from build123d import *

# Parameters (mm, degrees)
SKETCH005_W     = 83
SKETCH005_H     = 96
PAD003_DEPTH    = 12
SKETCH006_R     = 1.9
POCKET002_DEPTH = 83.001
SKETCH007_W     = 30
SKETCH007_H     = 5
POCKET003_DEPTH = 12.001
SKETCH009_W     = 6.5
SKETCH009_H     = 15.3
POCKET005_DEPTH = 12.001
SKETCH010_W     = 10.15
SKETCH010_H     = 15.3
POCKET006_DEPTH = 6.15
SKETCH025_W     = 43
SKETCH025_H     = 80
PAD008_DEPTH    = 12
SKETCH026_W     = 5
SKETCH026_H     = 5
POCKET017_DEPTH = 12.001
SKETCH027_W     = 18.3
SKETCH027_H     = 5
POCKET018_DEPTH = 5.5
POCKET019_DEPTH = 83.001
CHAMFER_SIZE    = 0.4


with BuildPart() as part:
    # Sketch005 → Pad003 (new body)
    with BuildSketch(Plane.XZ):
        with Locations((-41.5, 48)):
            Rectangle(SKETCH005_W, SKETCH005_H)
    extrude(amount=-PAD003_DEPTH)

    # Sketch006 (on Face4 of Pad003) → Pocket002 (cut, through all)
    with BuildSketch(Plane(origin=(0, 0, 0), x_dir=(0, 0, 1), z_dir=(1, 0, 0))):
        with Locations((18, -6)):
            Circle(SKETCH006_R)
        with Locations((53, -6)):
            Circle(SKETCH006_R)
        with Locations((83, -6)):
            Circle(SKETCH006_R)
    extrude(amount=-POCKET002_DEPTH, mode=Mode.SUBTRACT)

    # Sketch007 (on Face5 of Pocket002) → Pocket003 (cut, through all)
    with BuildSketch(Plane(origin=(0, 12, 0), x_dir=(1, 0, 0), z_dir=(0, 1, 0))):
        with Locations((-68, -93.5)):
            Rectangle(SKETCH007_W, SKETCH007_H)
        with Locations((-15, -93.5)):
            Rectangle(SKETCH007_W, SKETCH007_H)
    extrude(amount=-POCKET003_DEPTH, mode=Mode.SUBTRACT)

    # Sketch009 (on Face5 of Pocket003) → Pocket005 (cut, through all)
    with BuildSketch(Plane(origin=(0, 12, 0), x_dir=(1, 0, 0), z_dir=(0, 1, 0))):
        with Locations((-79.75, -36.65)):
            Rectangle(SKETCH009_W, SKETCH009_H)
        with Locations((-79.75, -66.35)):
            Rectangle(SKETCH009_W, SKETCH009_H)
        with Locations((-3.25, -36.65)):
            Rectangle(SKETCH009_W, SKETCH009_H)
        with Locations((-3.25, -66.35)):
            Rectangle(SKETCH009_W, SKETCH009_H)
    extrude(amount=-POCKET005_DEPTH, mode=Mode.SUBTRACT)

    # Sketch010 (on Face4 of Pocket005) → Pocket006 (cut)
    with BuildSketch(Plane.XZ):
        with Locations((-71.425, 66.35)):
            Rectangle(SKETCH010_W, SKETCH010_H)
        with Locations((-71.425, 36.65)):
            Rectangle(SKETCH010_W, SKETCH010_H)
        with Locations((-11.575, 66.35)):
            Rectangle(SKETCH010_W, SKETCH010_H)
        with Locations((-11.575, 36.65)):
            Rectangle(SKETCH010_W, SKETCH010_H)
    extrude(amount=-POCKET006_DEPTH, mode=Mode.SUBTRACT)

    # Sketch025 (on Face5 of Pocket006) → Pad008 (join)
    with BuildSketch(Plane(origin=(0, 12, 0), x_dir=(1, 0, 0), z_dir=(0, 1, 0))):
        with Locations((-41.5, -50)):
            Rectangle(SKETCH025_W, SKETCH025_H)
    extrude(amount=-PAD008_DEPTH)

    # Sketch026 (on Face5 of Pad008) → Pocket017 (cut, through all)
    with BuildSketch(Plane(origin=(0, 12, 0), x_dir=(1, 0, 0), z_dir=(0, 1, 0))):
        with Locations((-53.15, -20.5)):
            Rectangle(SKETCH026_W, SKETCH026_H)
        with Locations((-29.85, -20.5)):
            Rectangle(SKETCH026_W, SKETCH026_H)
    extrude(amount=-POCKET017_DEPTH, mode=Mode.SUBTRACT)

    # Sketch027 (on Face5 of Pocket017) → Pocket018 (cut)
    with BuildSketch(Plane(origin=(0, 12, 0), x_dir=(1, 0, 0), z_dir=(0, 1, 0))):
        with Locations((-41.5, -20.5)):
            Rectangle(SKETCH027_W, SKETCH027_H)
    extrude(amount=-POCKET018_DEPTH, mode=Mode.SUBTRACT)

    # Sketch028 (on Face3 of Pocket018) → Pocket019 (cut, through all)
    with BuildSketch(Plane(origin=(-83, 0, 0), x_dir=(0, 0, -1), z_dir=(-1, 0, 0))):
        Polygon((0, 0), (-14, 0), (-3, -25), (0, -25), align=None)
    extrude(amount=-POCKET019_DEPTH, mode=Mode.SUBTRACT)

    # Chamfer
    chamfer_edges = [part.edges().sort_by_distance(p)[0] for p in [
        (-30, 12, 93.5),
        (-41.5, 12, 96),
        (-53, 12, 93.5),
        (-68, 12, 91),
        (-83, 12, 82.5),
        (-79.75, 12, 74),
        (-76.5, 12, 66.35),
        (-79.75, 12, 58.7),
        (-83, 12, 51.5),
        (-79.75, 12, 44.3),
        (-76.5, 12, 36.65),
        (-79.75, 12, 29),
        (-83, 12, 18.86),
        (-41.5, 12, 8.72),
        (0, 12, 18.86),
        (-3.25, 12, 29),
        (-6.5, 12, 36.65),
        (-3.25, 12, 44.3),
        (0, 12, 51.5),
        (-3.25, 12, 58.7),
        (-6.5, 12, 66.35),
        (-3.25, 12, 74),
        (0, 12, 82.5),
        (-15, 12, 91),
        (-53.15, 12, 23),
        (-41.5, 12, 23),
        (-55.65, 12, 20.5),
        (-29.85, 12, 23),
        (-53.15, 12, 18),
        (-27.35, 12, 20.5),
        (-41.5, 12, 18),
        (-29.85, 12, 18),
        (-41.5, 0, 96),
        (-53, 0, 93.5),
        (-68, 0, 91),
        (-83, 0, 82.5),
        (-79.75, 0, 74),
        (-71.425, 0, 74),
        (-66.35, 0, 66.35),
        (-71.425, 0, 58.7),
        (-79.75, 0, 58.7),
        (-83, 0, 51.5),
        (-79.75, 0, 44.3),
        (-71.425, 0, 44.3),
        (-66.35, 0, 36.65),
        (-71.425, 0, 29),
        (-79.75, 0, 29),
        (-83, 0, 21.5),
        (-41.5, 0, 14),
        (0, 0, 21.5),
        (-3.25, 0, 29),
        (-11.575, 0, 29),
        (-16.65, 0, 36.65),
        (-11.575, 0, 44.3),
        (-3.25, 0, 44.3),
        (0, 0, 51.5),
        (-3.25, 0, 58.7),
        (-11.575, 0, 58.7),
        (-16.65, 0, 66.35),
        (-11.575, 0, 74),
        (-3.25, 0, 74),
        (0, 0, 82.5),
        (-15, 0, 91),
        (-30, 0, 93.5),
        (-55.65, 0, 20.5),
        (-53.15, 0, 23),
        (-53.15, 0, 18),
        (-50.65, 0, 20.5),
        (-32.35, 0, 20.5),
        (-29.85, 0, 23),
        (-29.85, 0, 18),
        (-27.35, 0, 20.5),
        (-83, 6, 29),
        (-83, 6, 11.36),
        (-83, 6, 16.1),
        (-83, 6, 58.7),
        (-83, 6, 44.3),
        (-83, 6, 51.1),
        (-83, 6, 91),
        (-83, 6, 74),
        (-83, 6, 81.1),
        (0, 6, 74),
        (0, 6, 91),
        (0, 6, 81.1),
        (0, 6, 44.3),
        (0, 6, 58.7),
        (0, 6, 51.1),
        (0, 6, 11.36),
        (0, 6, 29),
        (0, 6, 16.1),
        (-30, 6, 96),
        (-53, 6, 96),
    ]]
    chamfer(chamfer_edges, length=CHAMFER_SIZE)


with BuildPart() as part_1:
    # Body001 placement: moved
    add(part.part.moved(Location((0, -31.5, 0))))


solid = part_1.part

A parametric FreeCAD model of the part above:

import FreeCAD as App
import Part
import Sketcher

V = App.Vector
Q = App.Units.Quantity


def edges_at(feature, points):
    """Names of the edges that pass closest to the given points."""
    edges = feature.Shape.Edges
    near = lambda p: min(range(len(edges)), key=lambda i: edges[i].distToShape(Part.Vertex(*p))[0])
    return sorted({f"Edge{near(p) + 1}" for p in points})


def add_polygon(sketch, points):
    """Adds a closed chain of lines whose ends are joined by coincident constraints."""
    first, n = sketch.GeometryCount, len(points)
    for a, b in zip(points, points[1:] + points[:1]):
        sketch.addGeometry(Part.LineSegment(App.Vector(*a, 0), App.Vector(*b, 0)), False)
    for i in range(n):
        sketch.addConstraint(Sketcher.Constraint("Coincident", first + i, 2, first + (i + 1) % n, 1))

doc = App.newDocument("Part")
body = doc.addObject("PartDesign::Body", "Body")

# Sketch on XZ plane
sketch1 = doc.addObject("Sketcher::SketchObject", "Sketch")
body.addObject(sketch1)
sketch1.AttachmentSupport = (doc.XZ_Plane, [""])
sketch1.MapMode = "FlatFace"
add_polygon(sketch1, [(-83, 96), (-83, 0), (0, 0), (0, 96)])  # lines 0-3
sketch1.addConstraint([
    Sketcher.Constraint("Vertical", 0),
    Sketcher.Constraint("Horizontal", 1),
    Sketcher.Constraint("Vertical", 2),
    Sketcher.Constraint("Horizontal", 3),
    Sketcher.Constraint("Coincident", 1, 2, -1, 1),
    Sketcher.Constraint("DistanceX", 1, 1, 1, 2, Q("83 mm")),
    Sketcher.Constraint("DistanceY", 0, 2, 0, 1, Q("96 mm")),
])
pad1 = doc.addObject("PartDesign::Pad", "Pad")
body.addObject(pad1)
pad1.Profile = sketch1
pad1.Length = 12
pad1.Reversed = True

# Sketch on YZ plane
sketch2 = doc.addObject("Sketcher::SketchObject", "Sketch001")
body.addObject(sketch2)
sketch2.AttachmentSupport = (doc.YZ_Plane, [""])
sketch2.MapMode = "FlatFace"
sketch2.addGeometry([
    Part.Circle(V(6, 18, 0), V(0, 0, 1), 1.9),
    Part.Circle(V(6, 53, 0), V(0, 0, 1), 1.9),
    Part.Circle(V(6, 83, 0), V(0, 0, 1), 1.9),
], False)
sketch2.addConstraint([
    Sketcher.Constraint("Equal", 0, 1),
    Sketcher.Constraint("Equal", 1, 2),
    Sketcher.Constraint("Vertical", 0, 3, 1, 3),
    Sketcher.Constraint("Vertical", 1, 3, 2, 3),
    Sketcher.Constraint("Diameter", 0, Q("3.8 mm")),
    Sketcher.Constraint("DistanceX", -1, 1, 0, 3, Q("6 mm")),
    Sketcher.Constraint("DistanceY", -1, 1, 0, 3, Q("18 mm")),
    Sketcher.Constraint("DistanceY", -1, 1, 1, 3, Q("53 mm")),
    Sketcher.Constraint("DistanceY", -1, 1, 2, 3, Q("83 mm")),
])
pocket1 = doc.addObject("PartDesign::Pocket", "Pocket")
body.addObject(pocket1)
pocket1.Profile = sketch2
pocket1.Type = "ThroughAll"

# Sketch on XZ plane
sketch3 = doc.addObject("Sketcher::SketchObject", "Sketch002")
body.addObject(sketch3)
sketch3.AttachmentSupport = (doc.XZ_Plane, [""])
sketch3.MapMode = "FlatFace"
sketch3.AttachmentOffset = App.Placement(V(0, 0, -12), App.Rotation())
add_polygon(sketch3, [(-83, 91), (-83, 96), (-53, 96), (-53, 91)])  # lines 0-3
add_polygon(sketch3, [(-30, 91), (-30, 96), (0, 96), (0, 91)])  # lines 4-7
sketch3.addConstraint([
    Sketcher.Constraint("Vertical", 0),
    Sketcher.Constraint("Horizontal", 1),
    Sketcher.Constraint("Vertical", 2),
    Sketcher.Constraint("Horizontal", 3),
    Sketcher.Constraint("Vertical", 4),
    Sketcher.Constraint("Horizontal", 5),
    Sketcher.Constraint("Vertical", 6),
    Sketcher.Constraint("Horizontal", 7),
    Sketcher.Constraint("PointOnObject", 5, 2, -2),
    Sketcher.Constraint("Horizontal", 1, 2, 4, 2),
    Sketcher.Constraint("Horizontal", 3, 2, 6, 2),
    Sketcher.Constraint("Equal", 3, 5),
    Sketcher.Constraint("DistanceX", 1, 1, 1, 2, Q("30 mm")),
    Sketcher.Constraint("DistanceY", 0, 1, 0, 2, Q("5 mm")),
    Sketcher.Constraint("DistanceX", 0, 2, -1, 1, Q("83 mm")),
    Sketcher.Constraint("DistanceY", -1, 1, 0, 2, Q("96 mm")),
])
pocket2 = doc.addObject("PartDesign::Pocket", "Pocket001")
body.addObject(pocket2)
pocket2.Profile = sketch3
pocket2.Type = "ThroughAll"
pocket2.Reversed = True

# Sketch on XZ plane
sketch4 = doc.addObject("Sketcher::SketchObject", "Sketch003")
body.addObject(sketch4)
sketch4.AttachmentSupport = (doc.XZ_Plane, [""])
sketch4.MapMode = "FlatFace"
sketch4.AttachmentOffset = App.Placement(V(0, 0, -12), App.Rotation())
add_polygon(sketch4, [(-83, 29), (-83, 44.3), (-76.5, 44.3), (-76.5, 29)])  # lines 0-3
add_polygon(sketch4, [(-83, 58.7), (-83, 74), (-76.5, 74), (-76.5, 58.7)])  # lines 4-7
add_polygon(sketch4, [(-6.5, 29), (-6.5, 44.3), (0, 44.3), (0, 29)])  # lines 8-11
add_polygon(sketch4, [(-6.5, 58.7), (-6.5, 74), (0, 74), (0, 58.7)])  # lines 12-15
sketch4.addConstraint([
    Sketcher.Constraint("Vertical", 0),
    Sketcher.Constraint("Horizontal", 1),
    Sketcher.Constraint("Vertical", 2),
    Sketcher.Constraint("Horizontal", 3),
    Sketcher.Constraint("Vertical", 4),
    Sketcher.Constraint("Horizontal", 5),
    Sketcher.Constraint("Vertical", 6),
    Sketcher.Constraint("Horizontal", 7),
    Sketcher.Constraint("Vertical", 8),
    Sketcher.Constraint("Horizontal", 9),
    Sketcher.Constraint("Vertical", 10),
    Sketcher.Constraint("Horizontal", 11),
    Sketcher.Constraint("Vertical", 12),
    Sketcher.Constraint("Horizontal", 13),
    Sketcher.Constraint("Vertical", 14),
    Sketcher.Constraint("Horizontal", 15),
    Sketcher.Constraint("PointOnObject", 9, 2, -2),
    Sketcher.Constraint("PointOnObject", 13, 2, -2),
    Sketcher.Constraint("Horizontal", 1, 2, 8, 2),
    Sketcher.Constraint("Horizontal", 3, 2, 10, 2),
    Sketcher.Constraint("Horizontal", 5, 2, 12, 2),
    Sketcher.Constraint("Horizontal", 7, 2, 14, 2),
    Sketcher.Constraint("Vertical", 3, 2, 4, 2),
    Sketcher.Constraint("Vertical", 2, 2, 5, 2),
    Sketcher.Constraint("Vertical", 11, 2, 12, 2),
    Sketcher.Constraint("Equal", 7, 9),
    Sketcher.Constraint("Equal", 2, 4),
    Sketcher.Constraint("DistanceX", 1, 1, 1, 2, Q("6.5 mm")),
    Sketcher.Constraint("DistanceY", 0, 1, 0, 2, Q("15.3 mm")),
    Sketcher.Constraint("DistanceX", 0, 2, -1, 1, Q("83 mm")),
    Sketcher.Constraint("DistanceY", -1, 1, 2, 2, Q("29 mm")),
    Sketcher.Constraint("DistanceY", -1, 1, 4, 2, Q("74 mm")),
])
pocket3 = doc.addObject("PartDesign::Pocket", "Pocket002")
body.addObject(pocket3)
pocket3.Profile = sketch4
pocket3.Type = "ThroughAll"
pocket3.Reversed = True

# Sketch on XZ plane
sketch5 = doc.addObject("Sketcher::SketchObject", "Sketch004")
body.addObject(sketch5)
sketch5.AttachmentSupport = (doc.XZ_Plane, [""])
sketch5.MapMode = "FlatFace"
add_polygon(sketch5, [(-76.5, 74), (-76.5, 58.7), (-66.35, 58.7), (-66.35, 74)])  # lines 0-3
add_polygon(sketch5, [(-76.5, 44.3), (-76.5, 29), (-66.35, 29), (-66.35, 44.3)])  # lines 4-7
add_polygon(sketch5, [(-16.65, 74), (-16.65, 58.7), (-6.5, 58.7), (-6.5, 74)])  # lines 8-11
add_polygon(sketch5, [(-16.65, 44.3), (-16.65, 29), (-6.5, 29), (-6.5, 44.3)])  # lines 12-15
sketch5.addConstraint([
    Sketcher.Constraint("Vertical", 0),
    Sketcher.Constraint("Horizontal", 1),
    Sketcher.Constraint("Vertical", 2),
    Sketcher.Constraint("Horizontal", 3),
    Sketcher.Constraint("Vertical", 4),
    Sketcher.Constraint("Horizontal", 5),
    Sketcher.Constraint("Vertical", 6),
    Sketcher.Constraint("Horizontal", 7),
    Sketcher.Constraint("Vertical", 8),
    Sketcher.Constraint("Horizontal", 9),
    Sketcher.Constraint("Vertical", 10),
    Sketcher.Constraint("Horizontal", 11),
    Sketcher.Constraint("Vertical", 12),
    Sketcher.Constraint("Horizontal", 13),
    Sketcher.Constraint("Vertical", 14),
    Sketcher.Constraint("Horizontal", 15),
    Sketcher.Constraint("Horizontal", 1, 2, 8, 2),
    Sketcher.Constraint("Horizontal", 3, 2, 10, 2),
    Sketcher.Constraint("Horizontal", 5, 2, 12, 2),
    Sketcher.Constraint("Horizontal", 7, 2, 14, 2),
    Sketcher.Constraint("Vertical", 3, 2, 4, 2),
    Sketcher.Constraint("Vertical", 2, 2, 5, 2),
    Sketcher.Constraint("Vertical", 11, 2, 12, 2),
    Sketcher.Constraint("Vertical", 10, 2, 13, 2),
    Sketcher.Constraint("Equal", 7, 9),
    Sketcher.Constraint("Equal", 2, 4),
    Sketcher.Constraint("DistanceY", 0, 2, 0, 1, Q("15.3 mm")),
    Sketcher.Constraint("DistanceY", -1, 1, 2, 2, Q("74 mm")),
    Sketcher.Constraint("DistanceY", -1, 1, 4, 2, Q("29 mm")),
    Sketcher.Constraint("DistanceX", 1, 1, 1, 2, Q("10.15 mm")),
    Sketcher.Constraint("DistanceX", 0, 2, -1, 1, Q("76.5 mm")),
    Sketcher.Constraint("DistanceX", 9, 2, -1, 1, Q("6.5 mm")),
])
pocket4 = doc.addObject("PartDesign::Pocket", "Pocket003")
body.addObject(pocket4)
pocket4.Profile = sketch5
pocket4.Length = 6.15

# Sketch on XZ plane
sketch6 = doc.addObject("Sketcher::SketchObject", "Sketch005")
body.addObject(sketch6)
sketch6.AttachmentSupport = (doc.XZ_Plane, [""])
sketch6.MapMode = "FlatFace"
sketch6.AttachmentOffset = App.Placement(V(0, 0, -12), App.Rotation())
add_polygon(sketch6, [(-63, 10), (-63, 90), (-20, 90), (-20, 10)])  # lines 0-3
sketch6.addConstraint([
    Sketcher.Constraint("Vertical", 0),
    Sketcher.Constraint("Horizontal", 1),
    Sketcher.Constraint("Vertical", 2),
    Sketcher.Constraint("Horizontal", 3),
    Sketcher.Constraint("DistanceX", 1, 1, 1, 2, Q("43 mm")),
    Sketcher.Constraint("DistanceY", 0, 1, 0, 2, Q("80 mm")),
    Sketcher.Constraint("DistanceX", 0, 2, -1, 1, Q("63 mm")),
    Sketcher.Constraint("DistanceY", -1, 1, 0, 2, Q("90 mm")),
])
pad2 = doc.addObject("PartDesign::Pad", "Pad001")
body.addObject(pad2)
pad2.Profile = sketch6
pad2.Length = 12

# Sketch on XZ plane
sketch7 = doc.addObject("Sketcher::SketchObject", "Sketch006")
body.addObject(sketch7)
sketch7.AttachmentSupport = (doc.XZ_Plane, [""])
sketch7.MapMode = "FlatFace"
sketch7.AttachmentOffset = App.Placement(V(0, 0, -12), App.Rotation())
add_polygon(sketch7, [(-55.65, 18), (-55.65, 23), (-50.65, 23), (-50.65, 18)])  # lines 0-3
add_polygon(sketch7, [(-32.35, 18), (-32.35, 23), (-27.35, 23), (-27.35, 18)])  # lines 4-7
sketch7.addConstraint([
    Sketcher.Constraint("Vertical", 0),
    Sketcher.Constraint("Horizontal", 1),
    Sketcher.Constraint("Vertical", 2),
    Sketcher.Constraint("Horizontal", 3),
    Sketcher.Constraint("Vertical", 4),
    Sketcher.Constraint("Horizontal", 5),
    Sketcher.Constraint("Vertical", 6),
    Sketcher.Constraint("Horizontal", 7),
    Sketcher.Constraint("Horizontal", 1, 2, 4, 2),
    Sketcher.Constraint("Horizontal", 3, 2, 6, 2),
    Sketcher.Constraint("Equal", 3, 5),
    Sketcher.Constraint("Equal", 7, 0),
    Sketcher.Constraint("DistanceX", 1, 1, 1, 2, Q("5 mm")),
    Sketcher.Constraint("DistanceY", -1, 1, 0, 2, Q("23 mm")),
    Sketcher.Constraint("DistanceX", 1, 2, 4, 2, Q("18.3 mm")),
    Sketcher.Constraint("DistanceX", 0, 2, -1, 1, Q("55.65 mm")),
])
pocket5 = doc.addObject("PartDesign::Pocket", "Pocket004")
body.addObject(pocket5)
pocket5.Profile = sketch7
pocket5.Type = "ThroughAll"
pocket5.Reversed = True

# Sketch on XZ plane
sketch8 = doc.addObject("Sketcher::SketchObject", "Sketch007")
body.addObject(sketch8)
sketch8.AttachmentSupport = (doc.XZ_Plane, [""])
sketch8.MapMode = "FlatFace"
sketch8.AttachmentOffset = App.Placement(V(0, 0, -12), App.Rotation())
add_polygon(sketch8, [(-50.65, 18), (-50.65, 23), (-32.35, 23), (-32.35, 18)])  # lines 0-3
sketch8.addConstraint([
    Sketcher.Constraint("Vertical", 0),
    Sketcher.Constraint("Horizontal", 1),
    Sketcher.Constraint("Vertical", 2),
    Sketcher.Constraint("Horizontal", 3),
    Sketcher.Constraint("DistanceY", 0, 1, 0, 2, Q("5 mm")),
    Sketcher.Constraint("DistanceX", 1, 1, 1, 2, Q("18.3 mm")),
    Sketcher.Constraint("DistanceY", -1, 1, 0, 2, Q("23 mm")),
    Sketcher.Constraint("DistanceX", 0, 2, -1, 1, Q("50.65 mm")),
])
pocket6 = doc.addObject("PartDesign::Pocket", "Pocket005")
body.addObject(pocket6)
pocket6.Profile = sketch8
pocket6.Length = 5.5
pocket6.Reversed = True

# Sketch on YZ plane
sketch9 = doc.addObject("Sketcher::SketchObject", "Sketch008")
body.addObject(sketch9)
sketch9.AttachmentSupport = (doc.YZ_Plane, [""])
sketch9.MapMode = "FlatFace"
sketch9.AttachmentOffset = App.Placement(V(0, 0, -83), App.Rotation())
add_polygon(sketch9, [(0, 0), (0, 14), (25, 3), (25, 0)])  # lines 0-3
sketch9.addConstraint([
    Sketcher.Constraint("Vertical", 0),
    Sketcher.Constraint("Vertical", 2),
    Sketcher.Constraint("Horizontal", 3),
    Sketcher.Constraint("Coincident", 3, 2, -1, 1),
    Sketcher.Constraint("DistanceX", 3, 2, 3, 1, Q("25 mm")),
    Sketcher.Constraint("DistanceY", 0, 1, 0, 2, Q("14 mm")),
    Sketcher.Constraint("DistanceY", 2, 2, 2, 1, Q("3 mm")),
])
pocket7 = doc.addObject("PartDesign::Pocket", "Pocket006")
body.addObject(pocket7)
pocket7.Profile = sketch9
pocket7.Type = "ThroughAll"
pocket7.Reversed = True
doc.recompute()

chamfer = doc.addObject("PartDesign::Chamfer", "Chamfer")
body.addObject(chamfer)
chamfer.Base = (pocket7, edges_at(pocket7, [
    (-30, 12, 93.5),
    (-41.5, 12, 96),
    (-53, 12, 93.5),
    (-68, 12, 91),
    (-83, 12, 82.5),
    (-79.75, 12, 74),
    (-76.5, 12, 66.35),
    (-79.75, 12, 58.7),
    (-83, 12, 51.5),
    (-79.75, 12, 44.3),
    (-76.5, 12, 36.65),
    (-79.75, 12, 29),
    (-83, 12, 18.86),
    (-41.5, 12, 8.72),
    (0, 12, 18.86),
    (-3.25, 12, 29),
    (-6.5, 12, 36.65),
    (-3.25, 12, 44.3),
    (0, 12, 51.5),
    (-3.25, 12, 58.7),
    (-6.5, 12, 66.35),
    (-3.25, 12, 74),
    (0, 12, 82.5),
    (-15, 12, 91),
    (-41.5, 12, 23),
    (-41.5, 12, 23),
    (-55.65, 12, 20.5),
    (-41.5, 12, 23),
    (-41.5, 12, 18),
    (-27.35, 12, 20.5),
    (-41.5, 12, 18),
    (-41.5, 12, 18),
    (-41.5, 0, 96),
    (-53, 0, 93.5),
    (-68, 0, 91),
    (-83, 0, 82.5),
    (-74.675, 0, 74),
    (-74.675, 0, 74),
    (-66.35, 0, 66.35),
    (-74.675, 0, 58.7),
    (-74.675, 0, 58.7),
    (-83, 0, 51.5),
    (-74.675, 0, 44.3),
    (-74.675, 0, 44.3),
    (-66.35, 0, 36.65),
    (-74.675, 0, 29),
    (-74.675, 0, 29),
    (-83, 0, 21.5),
    (-41.5, 0, 14),
    (0, 0, 21.5),
    (-8.325, 0, 29),
    (-8.325, 0, 29),
    (-16.65, 0, 36.65),
    (-8.325, 0, 44.3),
    (-8.325, 0, 44.3),
    (0, 0, 51.5),
    (-8.325, 0, 58.7),
    (-8.325, 0, 58.7),
    (-16.65, 0, 66.35),
    (-8.325, 0, 74),
    (-8.325, 0, 74),
    (0, 0, 82.5),
    (-15, 0, 91),
    (-30, 0, 93.5),
    (-55.65, 0, 20.5),
    (-53.15, 0, 23),
    (-53.15, 0, 18),
    (-50.65, 0, 20.5),
    (-32.35, 0, 20.5),
    (-29.85, 0, 23),
    (-29.85, 0, 18),
    (-27.35, 0, 20.5),
    (-83, 6, 29),
    (-83, 6, 11.36),
    (-83, 6, 16.1),
    (-83, 6, 58.7),
    (-83, 6, 44.3),
    (-83, 6, 51.1),
    (-83, 6, 91),
    (-83, 6, 74),
    (-83, 6, 81.1),
    (0, 6, 74),
    (0, 6, 91),
    (0, 6, 81.1),
    (0, 6, 44.3),
    (0, 6, 58.7),
    (0, 6, 51.1),
    (0, 6, 11.36),
    (0, 6, 29),
    (0, 6, 16.1),
    (-30, 6, 96),
    (-53, 6, 96),
]))
chamfer.Size = 0.4
body2 = doc.addObject("PartDesign::Body", "Body001")
doc.recompute()

body.Placement = App.Placement(V(0, -31.5, 0), App.Rotation(V(0, 0, 1), 0))
boolean = doc.addObject("PartDesign::Boolean", "Boolean")
body2.addObject(boolean)
boolean.Type = "Fuse"
boolean.addObjects([body])

doc.recompute()
